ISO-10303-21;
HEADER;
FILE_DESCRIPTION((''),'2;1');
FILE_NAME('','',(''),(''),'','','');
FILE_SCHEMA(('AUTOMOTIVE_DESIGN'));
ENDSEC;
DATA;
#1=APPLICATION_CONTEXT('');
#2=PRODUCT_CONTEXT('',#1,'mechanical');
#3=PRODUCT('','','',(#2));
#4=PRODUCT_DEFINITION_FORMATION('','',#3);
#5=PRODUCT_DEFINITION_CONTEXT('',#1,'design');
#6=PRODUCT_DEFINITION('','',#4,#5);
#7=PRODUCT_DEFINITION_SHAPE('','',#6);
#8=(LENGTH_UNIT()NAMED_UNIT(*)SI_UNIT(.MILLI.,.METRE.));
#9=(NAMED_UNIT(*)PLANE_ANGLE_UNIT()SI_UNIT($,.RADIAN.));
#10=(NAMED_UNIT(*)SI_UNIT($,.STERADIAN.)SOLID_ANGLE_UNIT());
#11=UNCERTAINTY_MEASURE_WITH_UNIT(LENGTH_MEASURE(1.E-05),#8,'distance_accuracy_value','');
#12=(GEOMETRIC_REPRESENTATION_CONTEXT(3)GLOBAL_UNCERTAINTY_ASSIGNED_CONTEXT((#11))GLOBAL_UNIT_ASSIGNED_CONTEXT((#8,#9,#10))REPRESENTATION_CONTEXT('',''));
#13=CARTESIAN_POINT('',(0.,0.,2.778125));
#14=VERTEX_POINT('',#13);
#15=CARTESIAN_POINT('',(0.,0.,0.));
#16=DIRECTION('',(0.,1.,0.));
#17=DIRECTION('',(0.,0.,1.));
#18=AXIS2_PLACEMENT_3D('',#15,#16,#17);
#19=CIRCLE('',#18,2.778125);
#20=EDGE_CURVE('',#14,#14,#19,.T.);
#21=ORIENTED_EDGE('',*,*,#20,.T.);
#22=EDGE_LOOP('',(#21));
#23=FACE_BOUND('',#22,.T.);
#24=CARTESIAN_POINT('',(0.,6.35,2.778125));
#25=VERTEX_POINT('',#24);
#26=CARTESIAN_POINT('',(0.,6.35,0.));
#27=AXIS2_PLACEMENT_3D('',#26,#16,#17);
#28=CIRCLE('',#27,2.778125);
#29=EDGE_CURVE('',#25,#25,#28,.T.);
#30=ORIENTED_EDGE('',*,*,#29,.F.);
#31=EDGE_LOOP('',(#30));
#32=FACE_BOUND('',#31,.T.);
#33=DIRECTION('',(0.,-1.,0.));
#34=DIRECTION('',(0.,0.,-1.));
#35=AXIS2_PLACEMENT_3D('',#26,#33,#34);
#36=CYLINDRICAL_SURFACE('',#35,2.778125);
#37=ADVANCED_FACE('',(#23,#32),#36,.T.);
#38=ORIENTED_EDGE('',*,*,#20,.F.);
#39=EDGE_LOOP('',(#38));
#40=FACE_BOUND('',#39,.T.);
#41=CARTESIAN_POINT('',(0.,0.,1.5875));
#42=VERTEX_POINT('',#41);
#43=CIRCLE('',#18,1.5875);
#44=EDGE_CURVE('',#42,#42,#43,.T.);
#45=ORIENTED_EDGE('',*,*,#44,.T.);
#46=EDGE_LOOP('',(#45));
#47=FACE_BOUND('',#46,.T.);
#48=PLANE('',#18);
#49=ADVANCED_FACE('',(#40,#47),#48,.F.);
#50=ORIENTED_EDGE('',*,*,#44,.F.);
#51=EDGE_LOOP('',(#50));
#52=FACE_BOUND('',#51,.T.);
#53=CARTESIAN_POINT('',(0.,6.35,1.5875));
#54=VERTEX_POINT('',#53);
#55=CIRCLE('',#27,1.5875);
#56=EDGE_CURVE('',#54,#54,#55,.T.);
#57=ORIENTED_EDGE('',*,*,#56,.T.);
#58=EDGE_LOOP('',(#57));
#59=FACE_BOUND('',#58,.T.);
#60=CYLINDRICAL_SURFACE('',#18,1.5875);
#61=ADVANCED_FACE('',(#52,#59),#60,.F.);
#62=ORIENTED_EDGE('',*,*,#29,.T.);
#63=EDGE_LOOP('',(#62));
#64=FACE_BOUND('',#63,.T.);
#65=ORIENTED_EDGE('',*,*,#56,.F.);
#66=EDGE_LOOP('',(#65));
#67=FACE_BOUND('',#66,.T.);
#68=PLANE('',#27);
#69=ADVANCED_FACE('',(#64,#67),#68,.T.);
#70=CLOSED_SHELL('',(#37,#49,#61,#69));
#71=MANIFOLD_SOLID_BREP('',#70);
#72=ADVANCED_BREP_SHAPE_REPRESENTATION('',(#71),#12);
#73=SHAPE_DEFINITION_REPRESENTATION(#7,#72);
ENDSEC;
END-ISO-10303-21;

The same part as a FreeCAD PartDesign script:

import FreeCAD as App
import Part
import Sketcher

V = App.Vector
Q = App.Units.Quantity

doc = App.newDocument("Part")
params = doc.addObject("Spreadsheet::Sheet", "Params")
for row, (alias, value) in enumerate([
    ("sketch1_diameter", "0.21875 in"),
    ("pad1_length", "0.25 in"),
    ("sketch2_diameter", "0.125 in"),
    ("pocket1_length", "0.25 in"),
], start=1):
    params.set(f"A{row}", alias)
    params.set(f"B{row}", "=" + value)
    params.setAlias(f"B{row}", alias)

body = doc.addObject("PartDesign::Body", "Body")

# Sketch on XZ plane
sketch1 = body.newObject("Sketcher::SketchObject", "Sketch")
sketch1.AttachmentSupport = (doc.getObject("XZ_Plane"), [""])
sketch1.MapMode = "FlatFace"
sketch1.addGeometry(Part.Circle(V(0, 0, 0), V(0, 0, 1), 2.778125), False)
sketch1.addConstraint([
    Sketcher.Constraint("Coincident", 0, 3, -1, 1),
    Sketcher.Constraint("Diameter", 0, Q("0.21875 in")),
])
sketch1.setExpression("Constraints[1]", "Params.sketch1_diameter")
pad1 = body.newObject("PartDesign::Pad", "Pad")
pad1.Profile = sketch1
pad1.setExpression("Length", "Params.pad1_length")
pad1.Reversed = True

# Sketch on XZ plane
sketch2 = body.newObject("Sketcher::SketchObject", "Sketch001")
sketch2.AttachmentSupport = (doc.getObject("XZ_Plane"), [""])
sketch2.MapMode = "FlatFace"
sketch2.AttachmentOffset = App.Placement(V(0, 0, -0.25 * 25.4), App.Rotation())
sketch2.addGeometry(Part.Circle(V(0, 0, 0), V(0, 0, 1), 1.5875), False)
sketch2.addConstraint([
    Sketcher.Constraint("Coincident", 0, 3, -1, 1),
    Sketcher.Constraint("Diameter", 0, Q("0.125 in")),
])
sketch2.setExpression("Constraints[1]", "Params.sketch2_diameter")
pocket1 = body.newObject("PartDesign::Pocket", "Pocket")
pocket1.Profile = sketch2
pocket1.setExpression("Length", "Params.pocket1_length")
pocket1.Reversed = True

doc.recompute()
